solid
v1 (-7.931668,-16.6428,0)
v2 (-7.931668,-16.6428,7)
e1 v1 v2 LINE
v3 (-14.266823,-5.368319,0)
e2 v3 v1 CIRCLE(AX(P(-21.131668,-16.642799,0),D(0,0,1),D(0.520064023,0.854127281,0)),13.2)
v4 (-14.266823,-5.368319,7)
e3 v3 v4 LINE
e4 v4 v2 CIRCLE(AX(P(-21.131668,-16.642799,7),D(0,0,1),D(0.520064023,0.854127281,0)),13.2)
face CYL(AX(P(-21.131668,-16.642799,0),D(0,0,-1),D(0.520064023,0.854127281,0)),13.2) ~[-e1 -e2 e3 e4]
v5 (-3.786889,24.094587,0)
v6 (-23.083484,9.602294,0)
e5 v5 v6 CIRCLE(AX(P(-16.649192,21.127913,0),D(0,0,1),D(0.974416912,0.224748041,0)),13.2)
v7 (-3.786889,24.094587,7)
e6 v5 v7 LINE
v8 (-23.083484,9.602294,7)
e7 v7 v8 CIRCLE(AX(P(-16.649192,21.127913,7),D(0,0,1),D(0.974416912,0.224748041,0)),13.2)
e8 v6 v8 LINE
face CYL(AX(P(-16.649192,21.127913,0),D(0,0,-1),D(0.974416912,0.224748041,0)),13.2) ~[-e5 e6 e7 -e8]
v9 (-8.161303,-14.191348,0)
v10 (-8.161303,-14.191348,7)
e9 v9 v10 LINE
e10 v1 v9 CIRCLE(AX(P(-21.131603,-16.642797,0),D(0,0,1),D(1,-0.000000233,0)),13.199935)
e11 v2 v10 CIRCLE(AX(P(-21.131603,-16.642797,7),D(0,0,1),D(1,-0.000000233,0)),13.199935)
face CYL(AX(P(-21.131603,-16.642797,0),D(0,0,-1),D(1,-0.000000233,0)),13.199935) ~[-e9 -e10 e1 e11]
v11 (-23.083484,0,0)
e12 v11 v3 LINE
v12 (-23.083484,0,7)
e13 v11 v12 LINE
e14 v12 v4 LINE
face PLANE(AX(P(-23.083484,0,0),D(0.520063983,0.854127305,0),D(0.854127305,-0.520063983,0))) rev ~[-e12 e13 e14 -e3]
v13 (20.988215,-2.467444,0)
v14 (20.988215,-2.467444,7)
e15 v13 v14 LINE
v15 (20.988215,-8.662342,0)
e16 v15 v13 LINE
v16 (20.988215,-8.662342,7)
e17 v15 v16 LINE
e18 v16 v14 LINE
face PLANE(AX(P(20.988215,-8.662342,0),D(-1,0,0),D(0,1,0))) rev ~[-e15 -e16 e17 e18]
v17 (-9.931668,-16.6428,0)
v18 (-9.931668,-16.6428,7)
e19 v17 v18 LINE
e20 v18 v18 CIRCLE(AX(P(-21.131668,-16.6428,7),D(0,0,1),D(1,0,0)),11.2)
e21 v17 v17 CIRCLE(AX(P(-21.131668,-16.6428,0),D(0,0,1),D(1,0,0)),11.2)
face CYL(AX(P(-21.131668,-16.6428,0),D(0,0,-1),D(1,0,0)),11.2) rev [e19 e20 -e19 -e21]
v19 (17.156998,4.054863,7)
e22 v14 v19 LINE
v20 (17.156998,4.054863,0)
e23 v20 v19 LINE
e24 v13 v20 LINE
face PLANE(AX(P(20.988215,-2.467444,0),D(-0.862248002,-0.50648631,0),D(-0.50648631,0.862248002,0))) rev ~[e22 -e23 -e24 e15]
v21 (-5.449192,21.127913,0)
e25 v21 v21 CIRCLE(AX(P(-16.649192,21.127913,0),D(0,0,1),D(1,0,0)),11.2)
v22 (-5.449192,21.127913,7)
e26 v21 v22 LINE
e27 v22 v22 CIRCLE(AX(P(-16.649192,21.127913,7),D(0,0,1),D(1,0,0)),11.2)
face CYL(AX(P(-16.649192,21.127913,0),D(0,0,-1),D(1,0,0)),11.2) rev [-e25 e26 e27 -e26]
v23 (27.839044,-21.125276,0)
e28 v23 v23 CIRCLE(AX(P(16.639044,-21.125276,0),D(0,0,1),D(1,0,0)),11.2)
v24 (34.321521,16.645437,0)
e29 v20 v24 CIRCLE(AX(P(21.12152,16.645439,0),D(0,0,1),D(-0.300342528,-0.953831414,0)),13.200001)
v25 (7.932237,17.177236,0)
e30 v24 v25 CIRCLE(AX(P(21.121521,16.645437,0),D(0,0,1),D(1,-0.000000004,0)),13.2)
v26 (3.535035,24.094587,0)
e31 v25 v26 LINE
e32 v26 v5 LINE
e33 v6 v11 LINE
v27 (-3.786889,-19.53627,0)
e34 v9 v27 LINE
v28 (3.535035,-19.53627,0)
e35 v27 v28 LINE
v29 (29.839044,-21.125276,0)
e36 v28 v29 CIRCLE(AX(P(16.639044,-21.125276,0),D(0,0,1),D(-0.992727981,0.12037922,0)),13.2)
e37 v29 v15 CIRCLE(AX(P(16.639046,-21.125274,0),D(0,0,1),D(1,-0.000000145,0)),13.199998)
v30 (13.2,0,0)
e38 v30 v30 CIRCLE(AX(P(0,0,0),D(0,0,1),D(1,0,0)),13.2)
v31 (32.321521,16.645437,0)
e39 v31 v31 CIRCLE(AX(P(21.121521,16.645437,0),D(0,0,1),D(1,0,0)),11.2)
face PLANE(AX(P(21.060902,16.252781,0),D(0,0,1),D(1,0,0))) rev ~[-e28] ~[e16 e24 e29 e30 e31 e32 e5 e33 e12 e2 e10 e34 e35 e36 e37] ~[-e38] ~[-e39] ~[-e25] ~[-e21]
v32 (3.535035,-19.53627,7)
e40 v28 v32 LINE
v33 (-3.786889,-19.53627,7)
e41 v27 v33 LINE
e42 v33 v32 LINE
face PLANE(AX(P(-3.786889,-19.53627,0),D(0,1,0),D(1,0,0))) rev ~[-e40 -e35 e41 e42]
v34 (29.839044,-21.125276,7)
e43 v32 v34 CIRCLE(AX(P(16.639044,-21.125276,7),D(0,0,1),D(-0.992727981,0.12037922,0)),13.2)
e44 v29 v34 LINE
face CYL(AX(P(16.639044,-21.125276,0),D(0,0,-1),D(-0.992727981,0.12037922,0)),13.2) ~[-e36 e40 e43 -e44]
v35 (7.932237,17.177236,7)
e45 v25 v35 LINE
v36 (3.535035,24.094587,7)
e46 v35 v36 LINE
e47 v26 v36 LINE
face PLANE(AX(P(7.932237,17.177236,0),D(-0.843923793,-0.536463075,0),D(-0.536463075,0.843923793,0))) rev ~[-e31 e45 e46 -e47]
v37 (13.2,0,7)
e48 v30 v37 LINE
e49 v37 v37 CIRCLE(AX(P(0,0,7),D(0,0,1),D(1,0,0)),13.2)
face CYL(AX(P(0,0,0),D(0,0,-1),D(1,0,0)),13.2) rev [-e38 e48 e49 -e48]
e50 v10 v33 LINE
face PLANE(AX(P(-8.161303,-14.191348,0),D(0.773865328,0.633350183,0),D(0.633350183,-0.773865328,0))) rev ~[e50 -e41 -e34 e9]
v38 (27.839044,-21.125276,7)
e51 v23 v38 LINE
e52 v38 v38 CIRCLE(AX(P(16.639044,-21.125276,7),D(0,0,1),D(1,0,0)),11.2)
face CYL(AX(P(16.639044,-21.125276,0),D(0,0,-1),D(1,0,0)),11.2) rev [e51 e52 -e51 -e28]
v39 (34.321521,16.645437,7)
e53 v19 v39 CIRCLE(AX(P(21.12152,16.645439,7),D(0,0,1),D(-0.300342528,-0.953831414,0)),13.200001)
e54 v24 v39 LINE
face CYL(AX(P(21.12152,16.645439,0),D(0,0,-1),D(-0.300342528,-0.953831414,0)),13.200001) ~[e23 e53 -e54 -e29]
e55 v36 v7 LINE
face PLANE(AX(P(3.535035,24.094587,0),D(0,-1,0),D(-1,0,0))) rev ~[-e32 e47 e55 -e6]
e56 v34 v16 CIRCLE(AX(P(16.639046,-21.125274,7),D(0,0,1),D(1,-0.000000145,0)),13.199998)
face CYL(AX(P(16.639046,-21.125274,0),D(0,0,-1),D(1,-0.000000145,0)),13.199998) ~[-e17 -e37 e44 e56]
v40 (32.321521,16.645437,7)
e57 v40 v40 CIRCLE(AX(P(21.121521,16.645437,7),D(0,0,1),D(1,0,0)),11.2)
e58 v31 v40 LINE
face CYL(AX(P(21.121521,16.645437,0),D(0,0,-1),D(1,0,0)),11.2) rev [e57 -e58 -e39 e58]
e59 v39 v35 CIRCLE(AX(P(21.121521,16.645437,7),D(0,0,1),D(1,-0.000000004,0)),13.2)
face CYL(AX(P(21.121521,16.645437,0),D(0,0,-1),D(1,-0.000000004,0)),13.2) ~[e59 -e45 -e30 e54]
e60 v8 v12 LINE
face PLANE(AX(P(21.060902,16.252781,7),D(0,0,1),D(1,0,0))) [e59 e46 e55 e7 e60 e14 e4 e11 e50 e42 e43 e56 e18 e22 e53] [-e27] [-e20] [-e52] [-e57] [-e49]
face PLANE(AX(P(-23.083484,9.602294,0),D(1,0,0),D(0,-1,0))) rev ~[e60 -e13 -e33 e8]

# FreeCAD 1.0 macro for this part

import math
import FreeCAD as App
import Part
import Sketcher

V = App.Vector

doc = App.newDocument("Part")
params = doc.addObject("Spreadsheet::Sheet", "Params")
for row, (alias, value) in enumerate([
    ("sketch1_diameter", "22.4 mm"),
    ("sketch1_diameter2", "26.4 mm"),
    ("pad1_length", "7 mm"),
], start=1):
    params.set(f"A{row}", alias)
    params.set(f"B{row}", "=" + value)
    params.setAlias(f"B{row}", alias)

body = doc.addObject("PartDesign::Body", "Body")

sketch1 = body.newObject("Sketcher::SketchObject", "Sketch")
sketch1.AttachmentSupport = (doc.getObject("XY_Plane"), [""])
sketch1.MapMode = "FlatFace"
sketch1.addGeometry(Part.ArcOfCircle(Part.Circle(V(21.12152, 16.645439, 0), V(0, 0, 1), 13.200001), math.radians(-107.478177), math.radians(-0.000008)), False)
sketch1.addGeometry(Part.ArcOfCircle(Part.Circle(V(21.121521, 16.645437, 0), V(0, 0, 1), 13.2), math.radians(0), math.radians(177.691054)), False)
sketch1.addGeometry(Part.LineSegment(V(7.932237, 17.177236, 0), V(3.535035, 24.094587, 0)), False)
sketch1.addGeometry(Part.LineSegment(V(3.535035, 24.094587, 0), V(-3.786889, 24.094587, 0)), False)
sketch1.addGeometry(Part.ArcOfCircle(Part.Circle(V(-16.649192, 21.127913, 0), V(0, 0, 1), 13.2), math.radians(12.988062), math.radians(240.827125)), False)
sketch1.addGeometry(Part.LineSegment(V(-23.083484, 9.602294, 0), V(-23.083484, 0, 0)), False)
sketch1.addGeometry(Part.LineSegment(V(-23.083484, 0, 0), V(-14.266823, -5.368319, 0)), False)
sketch1.addGeometry(Part.ArcOfCircle(Part.Circle(V(-21.131668, -16.642799, 0), V(0, 0, 1), 13.2), math.radians(58.663454), math.radians(359.999997)), False)
sketch1.addGeometry(Part.ArcOfCircle(Part.Circle(V(-21.131603, -16.642797, 0), V(0, 0, 1), 13.199935), math.radians(-0.000013), math.radians(10.702923)), False)
sketch1.addGeometry(Part.LineSegment(V(-8.161303, -14.191348, 0), V(-3.786889, -19.53627, 0)), False)
sketch1.addGeometry(Part.LineSegment(V(-3.786889, -19.53627, 0), V(3.535035, -19.53627, 0)), False)
sketch1.addGeometry(Part.ArcOfCircle(Part.Circle(V(16.639044, -21.125276, 0), V(0, 0, 1), 13.2), math.radians(173.086011), math.radians(359.999999)), False)
sketch1.addGeometry(Part.ArcOfCircle(Part.Circle(V(16.639046, -21.125274, 0), V(0, 0, 1), 13.199998), math.radians(-0.000008), math.radians(70.762629)), False)
sketch1.addGeometry(Part.LineSegment(V(20.988215, -8.662342, 0), V(20.988215, -2.467444, 0)), False)
sketch1.addGeometry(Part.LineSegment(V(20.988215, -2.467444, 0), V(17.156998, 4.054863, 0)), False)
sketch1.addGeometry(Part.Circle(V(-21.131668, -16.6428, 0), V(0, 0, 1), 11.2), False)
sketch1.addGeometry(Part.Circle(V(16.639044, -21.125276, 0), V(0, 0, 1), 11.2), False)
sketch1.addGeometry(Part.Circle(V(0, 0, 0), V(0, 0, 1), 13.2), False)
sketch1.addGeometry(Part.Circle(V(-16.649192, 21.127913, 0), V(0, 0, 1), 11.2), False)
sketch1.addGeometry(Part.Circle(V(21.121521, 16.645437, 0), V(0, 0, 1), 11.2), False)
sketch1.addConstraint(Sketcher.Constraint("Tangent", 0, 2, 1, 1))
sketch1.addConstraint(Sketcher.Constraint("Coincident", 1, 2, 2, 1))
sketch1.addConstraint(Sketcher.Constraint("Coincident", 2, 2, 3, 1))
sketch1.addConstraint(Sketcher.Constraint("Coincident", 3, 2, 4, 1))
sketch1.addConstraint(Sketcher.Constraint("Coincident", 4, 2, 5, 1))
sketch1.addConstraint(Sketcher.Constraint("Coincident", 5, 2, 6, 1))
sketch1.addConstraint(Sketcher.Constraint("Tangent", 6, 2, 7, 1))
sketch1.addConstraint(Sketcher.Constraint("Tangent", 7, 2, 8, 1))
sketch1.addConstraint(Sketcher.Constraint("Coincident", 8, 2, 9, 1))
sketch1.addConstraint(Sketcher.Constraint("Coincident", 9, 2, 10, 1))
sketch1.addConstraint(Sketcher.Constraint("Coincident", 10, 2, 11, 1))
sketch1.addConstraint(Sketcher.Constraint("Tangent", 11, 2, 12, 1))
sketch1.addConstraint(Sketcher.Constraint("Coincident", 12, 2, 13, 1))
sketch1.addConstraint(Sketcher.Constraint("Coincident", 13, 2, 14, 1))
sketch1.addConstraint(Sketcher.Constraint("Coincident", 14, 2, 0, 1))
sketch1.addConstraint(Sketcher.Constraint("Horizontal", 3))
sketch1.addConstraint(Sketcher.Constraint("Vertical", 5))
sketch1.addConstraint(Sketcher.Constraint("Horizontal", 10))
sketch1.addConstraint(Sketcher.Constraint("Vertical", 13))
sketch1.addConstraint(Sketcher.Constraint("Coincident", 17, 3, -1, 1))
sketch1.addConstraint(Sketcher.Constraint("Coincident", 15, 3, 7, 3))
sketch1.addConstraint(Sketcher.Constraint("Coincident", 16, 3, 11, 3))
sketch1.addConstraint(Sketcher.Constraint("Coincident", 18, 3, 4, 3))
sketch1.addConstraint(Sketcher.Constraint("Coincident", 19, 3, 0, 3))
sketch1.addConstraint(Sketcher.Constraint("Equal", 0, 1))
sketch1.addConstraint(Sketcher.Constraint("Equal", 1, 4))
sketch1.addConstraint(Sketcher.Constraint("Equal", 4, 7))
sketch1.addConstraint(Sketcher.Constraint("Equal", 7, 11))
sketch1.addConstraint(Sketcher.Constraint("Equal", 11, 12))
sketch1.addConstraint(Sketcher.Constraint("Equal", 15, 16))
sketch1.addConstraint(Sketcher.Constraint("Equal", 12, 17))
sketch1.addConstraint(Sketcher.Constraint("Equal", 16, 18))
sketch1.addConstraint(Sketcher.Constraint("Equal", 18, 19))
sketch1.addConstraint(Sketcher.Constraint("PointOnObject", 5, 2, -1))
sketch1.addConstraint(Sketcher.Constraint("Horizontal", 19, 3, 0, 2))
sketch1.addConstraint(Sketcher.Constraint("Horizontal", 15, 3, 7, 2))
sketch1.addConstraint(Sketcher.Constraint("Horizontal", 16, 3, 11, 2))
sketch1.addConstraint(Sketcher.Constraint("Vertical", 3, 2, 9, 2))
sketch1.addConstraint(Sketcher.Constraint("Vertical", 2, 2, 10, 2))
sketch1.addConstraint(Sketcher.Constraint("Diameter", 15, 22.4))
sketch1.addConstraint(Sketcher.Constraint("Diameter", 17, 26.4))
sketch1.addConstraint(Sketcher.Constraint("DistanceY", 13, 1, 13, 2, 6.194898))
sketch1.addConstraint(Sketcher.Constraint("DistanceX", -1, 1, 14, 2, 17.156998))
sketch1.addConstraint(Sketcher.Constraint("Radius", 8, 13.199935))
sketch1.addConstraint(Sketcher.Constraint("DistanceY", 7, 3, -1, 1, 16.642799))
sketch1.addConstraint(Sketcher.Constraint("DistanceY", 1, 3, 1, 2, 0.531799))
sketch1.addConstraint(Sketcher.Constraint("DistanceX", 8, 3, 8, 2, 12.9703))
sketch1.addConstraint(Sketcher.Constraint("Distance", 6, 10.32242))
sketch1.addConstraint(Sketcher.Constraint("DistanceX", 3, 2, 3, 1, 7.321924))
sketch1.addConstraint(Sketcher.Constraint("DistanceY", 5, 2, 5, 1, 9.602294))
sketch1.addConstraint(Sketcher.Constraint("DistanceX", -1, 1, 0, 3, 21.12152))
sketch1.addConstraint(Sketcher.Constraint("DistanceY", -1, 1, 0, 3, 16.645439))
sketch1.addConstraint(Sketcher.Constraint("DistanceX", 7, 3, -1, 1, 21.131668))
sketch1.addConstraint(Sketcher.Constraint("DistanceX", 18, 3, -1, 1, 16.649192))
sketch1.addConstraint(Sketcher.Constraint("DistanceX", 3, 2, -1, 1, 3.786889))
sketch1.addConstraint(Sketcher.Constraint("DistanceY", 9, 2, -1, 1, 19.53627))
sketch1.addConstraint(Sketcher.Constraint("DistanceY", 12, 2, -1, 1, 8.662342))
sketch1.addConstraint(Sketcher.Constraint("DistanceY", 11, 3, 8, 3, 4.482479))
sketch1.setExpression("Constraints[39]", "Params.sketch1_diameter")
sketch1.setExpression("Constraints[40]", "Params.sketch1_diameter2")
pad1 = body.newObject("PartDesign::Pad", "Pad")
pad1.Profile = sketch1
pad1.setExpression("Length", "Params.pad1_length")

doc.recompute()
